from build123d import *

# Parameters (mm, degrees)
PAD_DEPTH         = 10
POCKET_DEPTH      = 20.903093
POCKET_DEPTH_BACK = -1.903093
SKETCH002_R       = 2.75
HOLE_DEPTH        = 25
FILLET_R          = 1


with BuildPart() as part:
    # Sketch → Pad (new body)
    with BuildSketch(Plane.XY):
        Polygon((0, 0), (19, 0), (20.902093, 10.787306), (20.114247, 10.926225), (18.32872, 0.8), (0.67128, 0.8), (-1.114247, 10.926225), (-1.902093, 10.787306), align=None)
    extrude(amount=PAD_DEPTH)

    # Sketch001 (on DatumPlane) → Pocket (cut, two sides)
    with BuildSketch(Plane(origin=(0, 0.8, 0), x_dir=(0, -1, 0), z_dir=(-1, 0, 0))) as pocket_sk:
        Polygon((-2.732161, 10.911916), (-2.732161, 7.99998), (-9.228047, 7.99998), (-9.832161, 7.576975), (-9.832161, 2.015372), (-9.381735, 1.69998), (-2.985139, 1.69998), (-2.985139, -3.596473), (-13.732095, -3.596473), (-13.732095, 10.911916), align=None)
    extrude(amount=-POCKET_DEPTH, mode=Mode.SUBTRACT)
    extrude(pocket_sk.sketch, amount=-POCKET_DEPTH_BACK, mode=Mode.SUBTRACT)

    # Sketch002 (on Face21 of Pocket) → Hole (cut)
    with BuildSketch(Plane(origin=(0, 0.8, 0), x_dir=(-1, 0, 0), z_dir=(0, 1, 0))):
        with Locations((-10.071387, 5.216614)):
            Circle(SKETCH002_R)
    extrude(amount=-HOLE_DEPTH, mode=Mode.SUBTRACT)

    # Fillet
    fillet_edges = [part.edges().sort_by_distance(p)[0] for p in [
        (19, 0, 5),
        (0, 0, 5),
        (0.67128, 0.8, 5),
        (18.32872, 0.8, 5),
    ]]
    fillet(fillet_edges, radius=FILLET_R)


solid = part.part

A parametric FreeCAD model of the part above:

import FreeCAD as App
import Part
import Sketcher

V = App.Vector
Q = App.Units.Quantity


def edges_at(feature, points):
    """Names of the edges that pass closest to the given points."""
    edges = feature.Shape.Edges
    near = lambda p: min(range(len(edges)), key=lambda i: edges[i].distToShape(Part.Vertex(*p))[0])
    return sorted({f"Edge{near(p) + 1}" for p in points})

doc = App.newDocument("Part")
body = doc.addObject("PartDesign::Body", "Body")

sketch1 = body.newObject("Sketcher::SketchObject", "Sketch")
sketch1.AttachmentSupport = (doc.getObject("XY_Plane"), [""])
sketch1.MapMode = "FlatFace"
sketch1.addGeometry(Part.LineSegment(V(0, 0, 0), V(19, 0, 0)), False)
sketch1.addGeometry(Part.LineSegment(V(19, 0, 0), V(20.902093, 10.787306, 0)), False)
sketch1.addGeometry(Part.LineSegment(V(20.902093, 10.787306, 0), V(20.114247, 10.926225, 0)), False)
sketch1.addGeometry(Part.LineSegment(V(20.114247, 10.926225, 0), V(18.32872, 0.8, 0)), False)
sketch1.addGeometry(Part.LineSegment(V(18.32872, 0.8, 0), V(0.67128, 0.8, 0)), False)
sketch1.addGeometry(Part.LineSegment(V(0.67128, 0.8, 0), V(-1.114247, 10.926225, 0)), False)
sketch1.addGeometry(Part.LineSegment(V(-1.114247, 10.926225, 0), V(-1.902093, 10.787306, 0)), False)
sketch1.addGeometry(Part.LineSegment(V(-1.902093, 10.787306, 0), V(0, 0, 0)), False)
sketch1.addConstraint(Sketcher.Constraint("Coincident", 0, 2, 1, 1))
sketch1.addConstraint(Sketcher.Constraint("Coincident", 1, 2, 2, 1))
sketch1.addConstraint(Sketcher.Constraint("Coincident", 2, 2, 3, 1))
sketch1.addConstraint(Sketcher.Constraint("Coincident", 3, 2, 4, 1))
sketch1.addConstraint(Sketcher.Constraint("Coincident", 4, 2, 5, 1))
sketch1.addConstraint(Sketcher.Constraint("Coincident", 5, 2, 6, 1))
sketch1.addConstraint(Sketcher.Constraint("Coincident", 6, 2, 7, 1))
sketch1.addConstraint(Sketcher.Constraint("Coincident", 7, 2, 0, 1))
sketch1.addConstraint(Sketcher.Constraint("Horizontal", 0))
sketch1.addConstraint(Sketcher.Constraint("Horizontal", 4))
sketch1.addConstraint(Sketcher.Constraint("Coincident", 7, 2, -1, 1))
sketch1.addConstraint(Sketcher.Constraint("Perpendicular", 1, 2))
sketch1.addConstraint(Sketcher.Constraint("Perpendicular", 2, 3))
sketch1.addConstraint(Sketcher.Constraint("Perpendicular", 5, 6))
sketch1.addConstraint(Sketcher.Constraint("Perpendicular", 6, 7))
sketch1.addConstraint(Sketcher.Constraint("Horizontal", 2, 2, 5, 2))
sketch1.addConstraint(Sketcher.Constraint("Horizontal", 1, 2, 6, 2))
sketch1.addConstraint(Sketcher.Constraint("Equal", 3, 5))
sketch1.addConstraint(Sketcher.Constraint("DistanceX", 0, 1, 0, 2, Q("19 mm")))
sketch1.addConstraint(Sketcher.Constraint("Angle", 1, Q("80 deg")))
sketch1.addConstraint(Sketcher.Constraint("Distance", 2, Q("0.8 mm")))
sketch1.addConstraint(Sketcher.Constraint("DistanceY", -1, 1, 3, 2, Q("0.8 mm")))
sketch1.addConstraint(Sketcher.Constraint("Distance", 3, Q("10.282438 mm")))
pad1 = body.newObject("PartDesign::Pad", "Pad")
pad1.Profile = sketch1
pad1.Length = 10

sketch2 = body.newObject("Sketcher::SketchObject", "Sketch001")
sketch2.AttachmentSupport = (doc.getObject("YZ_Plane"), [""])
sketch2.MapMode = "FlatFace"
sketch2.addGeometry(Part.LineSegment(V(3.532161, 7.99998, 0), V(3.532161, 10.911916, 0)), False)
sketch2.addGeometry(Part.LineSegment(V(3.532161, 10.911916, 0), V(14.532095, 10.911916, 0)), False)
sketch2.addGeometry(Part.LineSegment(V(14.532095, 10.911916, 0), V(14.532095, -3.596473, 0)), False)
sketch2.addGeometry(Part.LineSegment(V(14.532095, -3.596473, 0), V(3.785139, -3.596473, 0)), False)
sketch2.addGeometry(Part.LineSegment(V(3.785139, -3.596473, 0), V(3.785139, 1.69998, 0)), False)
sketch2.addGeometry(Part.LineSegment(V(3.785139, 1.69998, 0), V(10.181735, 1.69998, 0)), False)
sketch2.addGeometry(Part.LineSegment(V(10.181735, 1.69998, 0), V(10.632161, 2.015372, 0)), False)
sketch2.addGeometry(Part.LineSegment(V(10.632161, 2.015372, 0), V(10.632161, 7.576975, 0)), False)
sketch2.addGeometry(Part.LineSegment(V(10.632161, 7.576975, 0), V(10.028047, 7.99998, 0)), False)
sketch2.addGeometry(Part.LineSegment(V(10.028047, 7.99998, 0), V(3.532161, 7.99998, 0)), False)
sketch2.addConstraint(Sketcher.Constraint("Coincident", 0, 2, 1, 1))
sketch2.addConstraint(Sketcher.Constraint("Coincident", 1, 2, 2, 1))
sketch2.addConstraint(Sketcher.Constraint("Coincident", 2, 2, 3, 1))
sketch2.addConstraint(Sketcher.Constraint("Coincident", 3, 2, 4, 1))
sketch2.addConstraint(Sketcher.Constraint("Coincident", 4, 2, 5, 1))
sketch2.addConstraint(Sketcher.Constraint("Coincident", 5, 2, 6, 1))
sketch2.addConstraint(Sketcher.Constraint("Coincident", 6, 2, 7, 1))
sketch2.addConstraint(Sketcher.Constraint("Coincident", 7, 2, 8, 1))
sketch2.addConstraint(Sketcher.Constraint("Coincident", 8, 2, 9, 1))
sketch2.addConstraint(Sketcher.Constraint("Coincident", 9, 2, 0, 1))
sketch2.addConstraint(Sketcher.Constraint("Vertical", 0))
sketch2.addConstraint(Sketcher.Constraint("Horizontal", 1))
sketch2.addConstraint(Sketcher.Constraint("Vertical", 2))
sketch2.addConstraint(Sketcher.Constraint("Horizontal", 3))
sketch2.addConstraint(Sketcher.Constraint("Vertical", 4))
sketch2.addConstraint(Sketcher.Constraint("Horizontal", 5))
sketch2.addConstraint(Sketcher.Constraint("Vertical", 7))
sketch2.addConstraint(Sketcher.Constraint("Horizontal", 9))
sketch2.addConstraint(Sketcher.Constraint("Angle", 8, Q("145.000011 deg")))
sketch2.addConstraint(Sketcher.Constraint("DistanceX", 0, 2, 7, 2, Q("7.1 mm")))
sketch2.addConstraint(Sketcher.Constraint("DistanceY", 5, 2, 8, 2, Q("6.3 mm")))
sketch2.addConstraint(Sketcher.Constraint("DistanceY", 2, 2, 2, 1, Q("14.508389 mm")))
sketch2.addConstraint(Sketcher.Constraint("Distance", 6, Q("0.549869 mm")))
sketch2.addConstraint(Sketcher.Constraint("DistanceX", 1, 1, 1, 2, Q("10.999934 mm")))
sketch2.addConstraint(Sketcher.Constraint("DistanceX", 3, 2, 3, 1, Q("10.746956 mm")))
sketch2.addConstraint(Sketcher.Constraint("DistanceX", 5, 1, 5, 2, Q("6.396596 mm")))
sketch2.addConstraint(Sketcher.Constraint("DistanceX", 9, 2, 9, 1, Q("6.495886 mm")))
sketch2.addConstraint(Sketcher.Constraint("DistanceY", 0, 1, 0, 2, Q("2.911936 mm")))
sketch2.addConstraint(Sketcher.Constraint("DistanceX", -1, 1, 0, 2, Q("3.532161 mm")))
sketch2.addConstraint(Sketcher.Constraint("DistanceY", -1, 1, 4, 2, Q("1.69998 mm")))
pocket1 = body.newObject("PartDesign::Pocket", "Pocket")
pocket1.Profile = sketch2
pocket1.Type = "ThroughAll"
pocket1.Midplane = True

sketch3 = body.newObject("Sketcher::SketchObject", "Sketch002")
sketch3.AttachmentSupport = (doc.getObject("XZ_Plane"), [""])
sketch3.MapMode = "FlatFace"
sketch3.AttachmentOffset = App.Placement(V(0, 0, -0.8), App.Rotation())
sketch3.addGeometry(Part.Circle(V(10.071387, 5.216614, 0), V(0, 0, 1), 2.75), False)
sketch3.addConstraint(Sketcher.Constraint("Diameter", 0, Q("5.5 mm")))
sketch3.addConstraint(Sketcher.Constraint("DistanceX", -1, 1, 0, 3, Q("10.071387 mm")))
sketch3.addConstraint(Sketcher.Constraint("DistanceY", -1, 1, 0, 3, Q("5.216614 mm")))
pocket2 = body.newObject("PartDesign::Pocket", "Pocket001")
pocket2.Profile = sketch3
pocket2.Length = 25
pocket2.Reversed = True
doc.recompute()

fillet = body.newObject("PartDesign::Fillet", "Fillet")
fillet.Base = (pocket2, edges_at(pocket2, [
    (19, 0, 5),
    (0, 0, 5),
    (0.671, 0.8, 5),
    (18.329, 0.8, 5),
]))
fillet.Radius = 1

doc.recompute()
